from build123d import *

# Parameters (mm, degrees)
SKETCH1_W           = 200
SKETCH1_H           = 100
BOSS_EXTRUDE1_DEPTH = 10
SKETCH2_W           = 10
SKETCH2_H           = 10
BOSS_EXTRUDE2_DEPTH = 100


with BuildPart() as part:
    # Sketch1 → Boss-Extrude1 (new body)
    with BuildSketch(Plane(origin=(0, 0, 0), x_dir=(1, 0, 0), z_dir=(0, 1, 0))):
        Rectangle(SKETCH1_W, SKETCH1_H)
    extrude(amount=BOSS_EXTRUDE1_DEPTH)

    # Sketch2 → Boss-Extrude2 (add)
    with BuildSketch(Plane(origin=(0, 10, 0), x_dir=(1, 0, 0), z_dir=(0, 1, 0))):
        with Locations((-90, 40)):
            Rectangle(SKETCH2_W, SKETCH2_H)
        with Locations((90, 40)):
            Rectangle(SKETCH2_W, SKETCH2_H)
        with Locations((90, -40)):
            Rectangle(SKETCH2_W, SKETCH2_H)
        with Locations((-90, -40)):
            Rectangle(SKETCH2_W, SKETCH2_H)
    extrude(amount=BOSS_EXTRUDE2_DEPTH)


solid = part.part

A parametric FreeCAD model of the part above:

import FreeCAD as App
import Part
import Sketcher


def add_polygon(sketch, points):
    """Adds a closed chain of lines whose ends are joined by coincident constraints."""
    first, n = sketch.GeometryCount, len(points)
    for a, b in zip(points, points[1:] + points[:1]):
        sketch.addGeometry(Part.LineSegment(App.Vector(*a, 0), App.Vector(*b, 0)), False)
    for i in range(n):
        sketch.addConstraint(Sketcher.Constraint("Coincident", first + i, 2, first + (i + 1) % n, 1))

doc = App.newDocument("Part")
body = doc.addObject("PartDesign::Body", "Body")

# Sketch on XZ plane
sketch1 = doc.addObject("Sketcher::SketchObject", "Sketch")
body.addObject(sketch1)
sketch1.AttachmentSupport = (doc.XZ_Plane, [""])
sketch1.MapMode = "FlatFace"
add_polygon(sketch1, [(-100, -50), (-100, 50), (100, 50), (100, -50)])  # lines 0-3
sketch1.addConstraint([
    Sketcher.Constraint("Vertical", 0),
    Sketcher.Constraint("Horizontal", 1),
    Sketcher.Constraint("Vertical", 2),
    Sketcher.Constraint("Horizontal", 3),
    Sketcher.Constraint("Symmetric", 0, 2, 2, 2, -1, 1),
    Sketcher.Constraint("DistanceX", 1, 1, 1, 2, 200.0),
    Sketcher.Constraint("DistanceY", 0, 1, 0, 2, 100.0),
])
pad1 = doc.addObject("PartDesign::Pad", "Pad")
body.addObject(pad1)
pad1.Profile = sketch1
pad1.Length = 10
pad1.Reversed = True

# Sketch on XZ plane
sketch2 = doc.addObject("Sketcher::SketchObject", "Sketch001")
body.addObject(sketch2)
sketch2.AttachmentSupport = (doc.XZ_Plane, [""])
sketch2.MapMode = "FlatFace"
sketch2.AttachmentOffset = App.Placement(App.Vector(0, 0, -10), App.Rotation())
add_polygon(sketch2, [(-95, -45), (-95, -35), (-85, -35), (-85, -45)])  # lines 0-3
add_polygon(sketch2, [(85, -45), (85, -35), (95, -35), (95, -45)])  # lines 4-7
add_polygon(sketch2, [(85, 35), (85, 45), (95, 45), (95, 35)])  # lines 8-11
add_polygon(sketch2, [(-95, 35), (-95, 45), (-85, 45), (-85, 35)])  # lines 12-15
sketch2.addConstraint([
    Sketcher.Constraint("Vertical", 0),
    Sketcher.Constraint("Horizontal", 1),
    Sketcher.Constraint("Vertical", 2),
    Sketcher.Constraint("Horizontal", 3),
    Sketcher.Constraint("Vertical", 4),
    Sketcher.Constraint("Horizontal", 5),
    Sketcher.Constraint("Vertical", 6),
    Sketcher.Constraint("Horizontal", 7),
    Sketcher.Constraint("Vertical", 8),
    Sketcher.Constraint("Horizontal", 9),
    Sketcher.Constraint("Vertical", 10),
    Sketcher.Constraint("Horizontal", 11),
    Sketcher.Constraint("Vertical", 12),
    Sketcher.Constraint("Horizontal", 13),
    Sketcher.Constraint("Vertical", 14),
    Sketcher.Constraint("Horizontal", 15),
    Sketcher.Constraint("Symmetric", 2, 2, 8, 2, -1, 1),
    Sketcher.Constraint("Symmetric", 0, 2, 10, 2, -1, 1),
    Sketcher.Constraint("Symmetric", 6, 2, 12, 2, -1, 1),
    Sketcher.Constraint("Symmetric", 4, 2, 14, 2, -1, 1),
    Sketcher.Constraint("Symmetric", 1, 2, 4, 2, -2),
    Sketcher.Constraint("Symmetric", 3, 2, 6, 2, -2),
    Sketcher.Constraint("Equal", 15, 0),
    Sketcher.Constraint("DistanceX", 1, 1, 1, 2, 10.0),
    Sketcher.Constraint("DistanceX", 0, 2, -1, 1, 95.0),
    Sketcher.Constraint("DistanceY", 0, 2, -1, 1, 35.0),
])
pad2 = doc.addObject("PartDesign::Pad", "Pad001")
body.addObject(pad2)
pad2.Profile = sketch2
pad2.Length = 100
pad2.Reversed = True

doc.recompute()
